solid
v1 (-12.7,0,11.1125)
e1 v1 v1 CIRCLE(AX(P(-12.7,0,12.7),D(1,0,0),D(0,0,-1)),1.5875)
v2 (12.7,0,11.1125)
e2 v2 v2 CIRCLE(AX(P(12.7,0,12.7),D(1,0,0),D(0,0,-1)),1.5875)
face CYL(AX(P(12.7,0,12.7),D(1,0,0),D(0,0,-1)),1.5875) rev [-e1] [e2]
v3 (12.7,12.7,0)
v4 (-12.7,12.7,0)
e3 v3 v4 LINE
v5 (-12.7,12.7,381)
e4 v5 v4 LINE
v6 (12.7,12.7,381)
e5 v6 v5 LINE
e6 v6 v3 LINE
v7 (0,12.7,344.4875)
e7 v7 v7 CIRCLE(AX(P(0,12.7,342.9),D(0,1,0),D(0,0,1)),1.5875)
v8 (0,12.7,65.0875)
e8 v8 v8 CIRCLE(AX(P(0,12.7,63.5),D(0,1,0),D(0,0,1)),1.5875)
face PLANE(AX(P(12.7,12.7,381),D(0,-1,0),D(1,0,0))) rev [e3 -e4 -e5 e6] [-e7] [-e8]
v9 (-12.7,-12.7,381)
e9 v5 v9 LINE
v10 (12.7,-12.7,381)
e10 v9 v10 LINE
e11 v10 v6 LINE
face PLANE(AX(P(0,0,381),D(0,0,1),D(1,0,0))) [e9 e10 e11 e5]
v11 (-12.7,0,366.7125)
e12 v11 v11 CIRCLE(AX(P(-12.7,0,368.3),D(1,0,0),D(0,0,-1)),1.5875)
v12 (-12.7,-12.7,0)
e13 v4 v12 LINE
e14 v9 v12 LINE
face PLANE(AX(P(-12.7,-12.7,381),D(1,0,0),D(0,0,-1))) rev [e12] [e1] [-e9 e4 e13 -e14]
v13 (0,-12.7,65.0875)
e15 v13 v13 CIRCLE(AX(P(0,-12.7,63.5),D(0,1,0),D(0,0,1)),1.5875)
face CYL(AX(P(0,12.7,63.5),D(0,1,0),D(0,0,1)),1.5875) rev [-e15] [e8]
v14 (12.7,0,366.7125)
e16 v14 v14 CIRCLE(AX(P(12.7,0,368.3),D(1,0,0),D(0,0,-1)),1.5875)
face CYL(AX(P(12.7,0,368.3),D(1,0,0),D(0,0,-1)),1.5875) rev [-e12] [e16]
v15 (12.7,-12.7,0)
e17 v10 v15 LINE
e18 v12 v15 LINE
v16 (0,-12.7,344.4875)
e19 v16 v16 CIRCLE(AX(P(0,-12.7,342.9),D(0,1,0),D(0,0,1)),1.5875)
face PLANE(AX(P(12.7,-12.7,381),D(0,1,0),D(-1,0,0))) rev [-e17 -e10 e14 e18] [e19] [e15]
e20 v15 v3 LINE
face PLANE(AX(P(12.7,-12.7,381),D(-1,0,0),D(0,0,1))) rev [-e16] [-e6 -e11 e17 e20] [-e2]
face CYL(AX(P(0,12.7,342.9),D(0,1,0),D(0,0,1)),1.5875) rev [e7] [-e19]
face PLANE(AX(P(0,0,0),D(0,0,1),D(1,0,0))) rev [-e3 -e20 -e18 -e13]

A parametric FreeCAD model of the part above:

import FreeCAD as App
import Part
import Sketcher
from FreeCAD import Vector
Q = App.Units.Quantity


def add_polygon(sketch, points):
    """Adds a closed chain of lines whose ends are joined by coincident constraints."""
    first, n = sketch.GeometryCount, len(points)
    for a, b in zip(points, points[1:] + points[:1]):
        sketch.addGeometry(Part.LineSegment(App.Vector(*a, 0), App.Vector(*b, 0)), False)
    for i in range(n):
        sketch.addConstraint(Sketcher.Constraint("Coincident", first + i, 2, first + (i + 1) % n, 1))

doc = App.newDocument("Part")
body = doc.addObject("PartDesign::Body", "Body")

# Sketch on XY plane
sketch1 = body.newObject("Sketcher::SketchObject", "Sketch")
sketch1.AttachmentSupport = (doc.getObject("XY_Plane"), [""])
sketch1.MapMode = "FlatFace"
add_polygon(sketch1, [(-13, 13), (-13, -13), (13, -13), (13, 13)])  # lines 0-3
sketch1.addConstraint([
    Sketcher.Constraint("Vertical", 0),
    Sketcher.Constraint("Horizontal", 1),
    Sketcher.Constraint("Vertical", 2),
    Sketcher.Constraint("Horizontal", 3),
    Sketcher.Constraint("Symmetric", 0, 2, 2, 2, -1, 1),
    Sketcher.Constraint("Equal", 3, 0),
    Sketcher.Constraint("DistanceX", 1, 1, 1, 2, Q("1 in")),
])
pad1 = body.newObject("PartDesign::Pad", "Pad")
pad1.Profile = sketch1
pad1.Length = Q("15 in")

# Sketch on YZ plane
sketch2 = body.newObject("Sketcher::SketchObject", "Sketch001")
sketch2.AttachmentSupport = (doc.getObject("YZ_Plane"), [""])
sketch2.MapMode = "FlatFace"
sketch2.AttachmentOffset = App.Placement(Vector(0, 0, 0.5 * 25.4), App.Rotation())
sketch2.addGeometry([
    Part.Circle(Vector(0, 12.7, 0), Vector(0, 0, 1), 1.6),
    Part.Circle(Vector(0, 368.3, 0), Vector(0, 0, 1), 1.6),
], False)
sketch2.addConstraint([
    Sketcher.Constraint("Equal", 0, 1),
    Sketcher.Constraint("PointOnObject", 0, 3, -2),
    Sketcher.Constraint("PointOnObject", 1, 3, -2),
    Sketcher.Constraint("Diameter", 0, Q("0.125 in")),
    Sketcher.Constraint("DistanceY", 0, 3, 1, 3, Q("14 in")),
    Sketcher.Constraint("DistanceY", -1, 1, 0, 3, Q("0.5 in")),
])
doc.recompute()
hole = body.newObject("PartDesign::Hole", "Hole")
hole.Profile = sketch2
hole.ThreadType = "None"
hole.Diameter = Q("0.125 in")
hole.DepthType = "ThroughAll"

# Sketch on XZ plane
sketch3 = body.newObject("Sketcher::SketchObject", "Sketch002")
sketch3.AttachmentSupport = (doc.getObject("XZ_Plane"), [""])
sketch3.MapMode = "FlatFace"
sketch3.AttachmentOffset = App.Placement(Vector(0, 0, -0.5 * 25.4), App.Rotation())
sketch3.addGeometry([
    Part.Circle(Vector(0, 63.5, 0), Vector(0, 0, 1), 1.6),
    Part.Circle(Vector(0, 342.9, 0), Vector(0, 0, 1), 1.6),
], False)
sketch3.addConstraint([
    Sketcher.Constraint("Equal", 0, 1),
    Sketcher.Constraint("PointOnObject", 0, 3, -2),
    Sketcher.Constraint("PointOnObject", 1, 3, -2),
    Sketcher.Constraint("Diameter", 0, Q("0.125 in")),
    Sketcher.Constraint("DistanceY", 0, 3, 1, 3, Q("11 in")),
    Sketcher.Constraint("DistanceY", -1, 1, 0, 3, Q("2.5 in")),
])
doc.recompute()
hole2 = body.newObject("PartDesign::Hole", "Hole001")
hole2.Profile = sketch3
hole2.ThreadType = "None"
hole2.Diameter = Q("0.125 in")
hole2.DepthType = "ThroughAll"
hole2.Reversed = True

doc.recompute()
